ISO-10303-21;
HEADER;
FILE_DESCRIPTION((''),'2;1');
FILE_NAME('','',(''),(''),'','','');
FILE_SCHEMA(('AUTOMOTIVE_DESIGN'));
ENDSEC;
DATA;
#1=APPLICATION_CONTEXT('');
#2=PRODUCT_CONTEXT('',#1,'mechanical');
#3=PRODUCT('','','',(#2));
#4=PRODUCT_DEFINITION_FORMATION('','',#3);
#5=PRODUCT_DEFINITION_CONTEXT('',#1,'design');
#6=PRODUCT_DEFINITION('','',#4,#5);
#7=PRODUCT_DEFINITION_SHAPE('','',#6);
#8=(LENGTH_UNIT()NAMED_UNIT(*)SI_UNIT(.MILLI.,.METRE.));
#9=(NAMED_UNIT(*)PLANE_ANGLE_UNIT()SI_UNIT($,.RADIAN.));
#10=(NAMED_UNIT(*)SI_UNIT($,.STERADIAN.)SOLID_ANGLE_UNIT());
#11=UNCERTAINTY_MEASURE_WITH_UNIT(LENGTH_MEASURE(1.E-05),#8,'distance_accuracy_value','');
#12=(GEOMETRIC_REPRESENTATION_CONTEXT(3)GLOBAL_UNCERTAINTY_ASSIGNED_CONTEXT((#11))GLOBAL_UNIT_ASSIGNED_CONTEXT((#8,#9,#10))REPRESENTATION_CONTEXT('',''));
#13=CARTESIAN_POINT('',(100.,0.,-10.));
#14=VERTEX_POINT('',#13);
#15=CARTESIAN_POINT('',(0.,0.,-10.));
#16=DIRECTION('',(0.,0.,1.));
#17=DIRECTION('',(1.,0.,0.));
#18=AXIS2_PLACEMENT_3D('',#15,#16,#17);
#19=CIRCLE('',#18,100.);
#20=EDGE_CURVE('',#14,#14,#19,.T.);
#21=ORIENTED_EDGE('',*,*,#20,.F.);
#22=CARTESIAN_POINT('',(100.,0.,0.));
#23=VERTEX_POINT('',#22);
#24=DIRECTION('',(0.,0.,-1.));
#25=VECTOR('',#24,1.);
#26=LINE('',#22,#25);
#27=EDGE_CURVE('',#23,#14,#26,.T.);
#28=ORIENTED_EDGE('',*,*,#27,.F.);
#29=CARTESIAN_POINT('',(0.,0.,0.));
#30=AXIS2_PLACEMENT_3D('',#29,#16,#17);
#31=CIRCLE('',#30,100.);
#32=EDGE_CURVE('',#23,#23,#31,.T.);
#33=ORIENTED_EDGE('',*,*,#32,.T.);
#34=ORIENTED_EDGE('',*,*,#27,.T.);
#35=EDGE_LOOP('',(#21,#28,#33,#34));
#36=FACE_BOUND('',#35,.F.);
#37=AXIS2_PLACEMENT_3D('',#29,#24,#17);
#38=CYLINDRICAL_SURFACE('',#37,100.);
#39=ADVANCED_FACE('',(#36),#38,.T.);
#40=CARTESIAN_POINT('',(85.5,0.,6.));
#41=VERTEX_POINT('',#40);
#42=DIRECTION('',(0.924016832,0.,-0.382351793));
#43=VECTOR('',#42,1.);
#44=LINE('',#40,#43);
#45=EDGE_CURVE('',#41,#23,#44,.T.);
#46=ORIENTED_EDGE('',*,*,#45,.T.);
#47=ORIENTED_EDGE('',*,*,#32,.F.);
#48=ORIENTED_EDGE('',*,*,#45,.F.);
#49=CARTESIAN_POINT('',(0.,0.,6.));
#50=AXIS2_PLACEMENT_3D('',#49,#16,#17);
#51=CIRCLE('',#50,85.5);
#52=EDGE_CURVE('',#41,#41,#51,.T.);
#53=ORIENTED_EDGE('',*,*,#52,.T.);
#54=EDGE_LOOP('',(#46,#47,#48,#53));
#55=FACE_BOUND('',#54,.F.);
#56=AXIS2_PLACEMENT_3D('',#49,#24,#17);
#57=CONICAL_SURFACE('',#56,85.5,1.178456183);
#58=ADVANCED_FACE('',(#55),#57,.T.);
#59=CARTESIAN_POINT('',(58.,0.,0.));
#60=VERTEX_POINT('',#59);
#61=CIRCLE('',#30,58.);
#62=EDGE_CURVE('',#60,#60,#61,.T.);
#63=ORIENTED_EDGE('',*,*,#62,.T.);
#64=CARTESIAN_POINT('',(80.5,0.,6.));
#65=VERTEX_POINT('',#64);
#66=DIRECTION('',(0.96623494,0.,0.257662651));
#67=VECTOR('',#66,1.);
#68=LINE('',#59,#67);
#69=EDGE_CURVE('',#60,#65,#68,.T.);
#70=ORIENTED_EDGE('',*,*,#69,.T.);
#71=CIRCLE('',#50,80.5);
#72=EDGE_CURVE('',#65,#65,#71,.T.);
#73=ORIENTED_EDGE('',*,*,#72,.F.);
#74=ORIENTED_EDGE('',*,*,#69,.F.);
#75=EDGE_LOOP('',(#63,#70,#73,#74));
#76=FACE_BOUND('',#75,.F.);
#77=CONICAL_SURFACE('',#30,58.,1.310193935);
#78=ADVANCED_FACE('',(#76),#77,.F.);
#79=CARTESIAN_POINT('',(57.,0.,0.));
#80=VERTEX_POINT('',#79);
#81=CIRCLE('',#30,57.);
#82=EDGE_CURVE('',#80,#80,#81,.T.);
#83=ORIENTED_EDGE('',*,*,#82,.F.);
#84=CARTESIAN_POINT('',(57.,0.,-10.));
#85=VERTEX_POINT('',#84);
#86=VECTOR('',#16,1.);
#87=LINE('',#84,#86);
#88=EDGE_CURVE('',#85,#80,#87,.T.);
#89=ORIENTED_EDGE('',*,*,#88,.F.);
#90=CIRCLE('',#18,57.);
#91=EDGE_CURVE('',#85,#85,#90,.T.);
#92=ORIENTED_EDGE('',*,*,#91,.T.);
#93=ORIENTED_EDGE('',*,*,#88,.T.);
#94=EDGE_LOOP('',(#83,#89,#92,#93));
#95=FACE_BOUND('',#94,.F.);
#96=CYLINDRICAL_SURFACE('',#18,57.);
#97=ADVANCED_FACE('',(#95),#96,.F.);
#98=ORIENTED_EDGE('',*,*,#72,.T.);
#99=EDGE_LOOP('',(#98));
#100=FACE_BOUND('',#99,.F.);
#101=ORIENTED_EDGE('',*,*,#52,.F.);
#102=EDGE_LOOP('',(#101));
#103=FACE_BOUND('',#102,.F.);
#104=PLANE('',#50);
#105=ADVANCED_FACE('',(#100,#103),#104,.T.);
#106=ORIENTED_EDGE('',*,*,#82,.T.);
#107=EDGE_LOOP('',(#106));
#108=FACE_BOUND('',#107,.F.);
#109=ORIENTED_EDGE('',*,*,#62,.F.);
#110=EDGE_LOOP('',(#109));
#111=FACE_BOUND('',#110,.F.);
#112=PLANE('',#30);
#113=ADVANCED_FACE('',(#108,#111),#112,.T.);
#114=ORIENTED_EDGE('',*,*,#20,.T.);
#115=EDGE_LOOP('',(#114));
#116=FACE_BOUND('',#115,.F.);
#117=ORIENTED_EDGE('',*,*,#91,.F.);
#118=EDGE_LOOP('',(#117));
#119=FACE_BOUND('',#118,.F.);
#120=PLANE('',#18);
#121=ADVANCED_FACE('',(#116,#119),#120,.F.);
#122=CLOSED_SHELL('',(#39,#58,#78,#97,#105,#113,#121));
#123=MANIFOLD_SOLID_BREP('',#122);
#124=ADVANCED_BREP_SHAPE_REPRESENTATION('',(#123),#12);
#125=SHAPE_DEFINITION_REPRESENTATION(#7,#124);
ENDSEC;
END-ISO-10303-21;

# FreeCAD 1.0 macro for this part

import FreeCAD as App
import Part
import Sketcher

V = App.Vector

doc = App.newDocument("Part")
body = doc.addObject("PartDesign::Body", "Body")

sketch1 = body.newObject("Sketcher::SketchObject", "Sketch")
sketch1.AttachmentSupport = (doc.getObject("XZ_Plane"), [""])
sketch1.MapMode = "FlatFace"
sketch1.addGeometry([
    Part.LineSegment(V(80.5, 6, 0), V(58, 0, 0)),
    Part.LineSegment(V(58, 0, 0), V(57, 0, 0)),
    Part.LineSegment(V(57, 0, 0), V(57, -10, 0)),
    Part.LineSegment(V(57, -10, 0), V(100, -10, 0)),
    Part.LineSegment(V(100, -10, 0), V(100, 0, 0)),
    Part.LineSegment(V(100, 0, 0), V(85.5, 6, 0)),
    Part.LineSegment(V(85.5, 6, 0), V(80.5, 6, 0)),
], False)
sketch1.addConstraint([
    Sketcher.Constraint("Coincident", 0, 2, 1, 1),
    Sketcher.Constraint("Coincident", 1, 2, 2, 1),
    Sketcher.Constraint("Coincident", 2, 2, 3, 1),
    Sketcher.Constraint("Coincident", 3, 2, 4, 1),
    Sketcher.Constraint("Coincident", 4, 2, 5, 1),
    Sketcher.Constraint("Coincident", 5, 2, 6, 1),
    Sketcher.Constraint("Coincident", 6, 2, 0, 1),
    Sketcher.Constraint("Horizontal", 1),
    Sketcher.Constraint("Vertical", 2),
    Sketcher.Constraint("Horizontal", 3),
    Sketcher.Constraint("Vertical", 4),
    Sketcher.Constraint("Horizontal", 6),
    Sketcher.Constraint("PointOnObject", 0, 2, -1),
    Sketcher.Constraint("PointOnObject", 4, 2, -1),
    Sketcher.Constraint("DistanceX", 1, 2, 1, 1, 1.0),
    Sketcher.Constraint("DistanceX", 3, 1, 3, 2, 43.0),
    Sketcher.Constraint("DistanceX", 6, 2, 6, 1, 5.0),
    Sketcher.Constraint("DistanceY", 2, 2, 2, 1, 10.0),
    Sketcher.Constraint("DistanceX", -1, 1, 0, 2, 58.0),
    Sketcher.Constraint("DistanceY", -1, 1, 5, 2, 6.0),
    Sketcher.Constraint("DistanceX", -1, 1, 5, 2, 85.5),
])
revolution = body.newObject("PartDesign::Revolution", "Revolution")
revolution.Profile = sketch1
revolution.ReferenceAxis = (sketch1, ["V_Axis"])
revolution.Angle = 360

doc.recompute()
